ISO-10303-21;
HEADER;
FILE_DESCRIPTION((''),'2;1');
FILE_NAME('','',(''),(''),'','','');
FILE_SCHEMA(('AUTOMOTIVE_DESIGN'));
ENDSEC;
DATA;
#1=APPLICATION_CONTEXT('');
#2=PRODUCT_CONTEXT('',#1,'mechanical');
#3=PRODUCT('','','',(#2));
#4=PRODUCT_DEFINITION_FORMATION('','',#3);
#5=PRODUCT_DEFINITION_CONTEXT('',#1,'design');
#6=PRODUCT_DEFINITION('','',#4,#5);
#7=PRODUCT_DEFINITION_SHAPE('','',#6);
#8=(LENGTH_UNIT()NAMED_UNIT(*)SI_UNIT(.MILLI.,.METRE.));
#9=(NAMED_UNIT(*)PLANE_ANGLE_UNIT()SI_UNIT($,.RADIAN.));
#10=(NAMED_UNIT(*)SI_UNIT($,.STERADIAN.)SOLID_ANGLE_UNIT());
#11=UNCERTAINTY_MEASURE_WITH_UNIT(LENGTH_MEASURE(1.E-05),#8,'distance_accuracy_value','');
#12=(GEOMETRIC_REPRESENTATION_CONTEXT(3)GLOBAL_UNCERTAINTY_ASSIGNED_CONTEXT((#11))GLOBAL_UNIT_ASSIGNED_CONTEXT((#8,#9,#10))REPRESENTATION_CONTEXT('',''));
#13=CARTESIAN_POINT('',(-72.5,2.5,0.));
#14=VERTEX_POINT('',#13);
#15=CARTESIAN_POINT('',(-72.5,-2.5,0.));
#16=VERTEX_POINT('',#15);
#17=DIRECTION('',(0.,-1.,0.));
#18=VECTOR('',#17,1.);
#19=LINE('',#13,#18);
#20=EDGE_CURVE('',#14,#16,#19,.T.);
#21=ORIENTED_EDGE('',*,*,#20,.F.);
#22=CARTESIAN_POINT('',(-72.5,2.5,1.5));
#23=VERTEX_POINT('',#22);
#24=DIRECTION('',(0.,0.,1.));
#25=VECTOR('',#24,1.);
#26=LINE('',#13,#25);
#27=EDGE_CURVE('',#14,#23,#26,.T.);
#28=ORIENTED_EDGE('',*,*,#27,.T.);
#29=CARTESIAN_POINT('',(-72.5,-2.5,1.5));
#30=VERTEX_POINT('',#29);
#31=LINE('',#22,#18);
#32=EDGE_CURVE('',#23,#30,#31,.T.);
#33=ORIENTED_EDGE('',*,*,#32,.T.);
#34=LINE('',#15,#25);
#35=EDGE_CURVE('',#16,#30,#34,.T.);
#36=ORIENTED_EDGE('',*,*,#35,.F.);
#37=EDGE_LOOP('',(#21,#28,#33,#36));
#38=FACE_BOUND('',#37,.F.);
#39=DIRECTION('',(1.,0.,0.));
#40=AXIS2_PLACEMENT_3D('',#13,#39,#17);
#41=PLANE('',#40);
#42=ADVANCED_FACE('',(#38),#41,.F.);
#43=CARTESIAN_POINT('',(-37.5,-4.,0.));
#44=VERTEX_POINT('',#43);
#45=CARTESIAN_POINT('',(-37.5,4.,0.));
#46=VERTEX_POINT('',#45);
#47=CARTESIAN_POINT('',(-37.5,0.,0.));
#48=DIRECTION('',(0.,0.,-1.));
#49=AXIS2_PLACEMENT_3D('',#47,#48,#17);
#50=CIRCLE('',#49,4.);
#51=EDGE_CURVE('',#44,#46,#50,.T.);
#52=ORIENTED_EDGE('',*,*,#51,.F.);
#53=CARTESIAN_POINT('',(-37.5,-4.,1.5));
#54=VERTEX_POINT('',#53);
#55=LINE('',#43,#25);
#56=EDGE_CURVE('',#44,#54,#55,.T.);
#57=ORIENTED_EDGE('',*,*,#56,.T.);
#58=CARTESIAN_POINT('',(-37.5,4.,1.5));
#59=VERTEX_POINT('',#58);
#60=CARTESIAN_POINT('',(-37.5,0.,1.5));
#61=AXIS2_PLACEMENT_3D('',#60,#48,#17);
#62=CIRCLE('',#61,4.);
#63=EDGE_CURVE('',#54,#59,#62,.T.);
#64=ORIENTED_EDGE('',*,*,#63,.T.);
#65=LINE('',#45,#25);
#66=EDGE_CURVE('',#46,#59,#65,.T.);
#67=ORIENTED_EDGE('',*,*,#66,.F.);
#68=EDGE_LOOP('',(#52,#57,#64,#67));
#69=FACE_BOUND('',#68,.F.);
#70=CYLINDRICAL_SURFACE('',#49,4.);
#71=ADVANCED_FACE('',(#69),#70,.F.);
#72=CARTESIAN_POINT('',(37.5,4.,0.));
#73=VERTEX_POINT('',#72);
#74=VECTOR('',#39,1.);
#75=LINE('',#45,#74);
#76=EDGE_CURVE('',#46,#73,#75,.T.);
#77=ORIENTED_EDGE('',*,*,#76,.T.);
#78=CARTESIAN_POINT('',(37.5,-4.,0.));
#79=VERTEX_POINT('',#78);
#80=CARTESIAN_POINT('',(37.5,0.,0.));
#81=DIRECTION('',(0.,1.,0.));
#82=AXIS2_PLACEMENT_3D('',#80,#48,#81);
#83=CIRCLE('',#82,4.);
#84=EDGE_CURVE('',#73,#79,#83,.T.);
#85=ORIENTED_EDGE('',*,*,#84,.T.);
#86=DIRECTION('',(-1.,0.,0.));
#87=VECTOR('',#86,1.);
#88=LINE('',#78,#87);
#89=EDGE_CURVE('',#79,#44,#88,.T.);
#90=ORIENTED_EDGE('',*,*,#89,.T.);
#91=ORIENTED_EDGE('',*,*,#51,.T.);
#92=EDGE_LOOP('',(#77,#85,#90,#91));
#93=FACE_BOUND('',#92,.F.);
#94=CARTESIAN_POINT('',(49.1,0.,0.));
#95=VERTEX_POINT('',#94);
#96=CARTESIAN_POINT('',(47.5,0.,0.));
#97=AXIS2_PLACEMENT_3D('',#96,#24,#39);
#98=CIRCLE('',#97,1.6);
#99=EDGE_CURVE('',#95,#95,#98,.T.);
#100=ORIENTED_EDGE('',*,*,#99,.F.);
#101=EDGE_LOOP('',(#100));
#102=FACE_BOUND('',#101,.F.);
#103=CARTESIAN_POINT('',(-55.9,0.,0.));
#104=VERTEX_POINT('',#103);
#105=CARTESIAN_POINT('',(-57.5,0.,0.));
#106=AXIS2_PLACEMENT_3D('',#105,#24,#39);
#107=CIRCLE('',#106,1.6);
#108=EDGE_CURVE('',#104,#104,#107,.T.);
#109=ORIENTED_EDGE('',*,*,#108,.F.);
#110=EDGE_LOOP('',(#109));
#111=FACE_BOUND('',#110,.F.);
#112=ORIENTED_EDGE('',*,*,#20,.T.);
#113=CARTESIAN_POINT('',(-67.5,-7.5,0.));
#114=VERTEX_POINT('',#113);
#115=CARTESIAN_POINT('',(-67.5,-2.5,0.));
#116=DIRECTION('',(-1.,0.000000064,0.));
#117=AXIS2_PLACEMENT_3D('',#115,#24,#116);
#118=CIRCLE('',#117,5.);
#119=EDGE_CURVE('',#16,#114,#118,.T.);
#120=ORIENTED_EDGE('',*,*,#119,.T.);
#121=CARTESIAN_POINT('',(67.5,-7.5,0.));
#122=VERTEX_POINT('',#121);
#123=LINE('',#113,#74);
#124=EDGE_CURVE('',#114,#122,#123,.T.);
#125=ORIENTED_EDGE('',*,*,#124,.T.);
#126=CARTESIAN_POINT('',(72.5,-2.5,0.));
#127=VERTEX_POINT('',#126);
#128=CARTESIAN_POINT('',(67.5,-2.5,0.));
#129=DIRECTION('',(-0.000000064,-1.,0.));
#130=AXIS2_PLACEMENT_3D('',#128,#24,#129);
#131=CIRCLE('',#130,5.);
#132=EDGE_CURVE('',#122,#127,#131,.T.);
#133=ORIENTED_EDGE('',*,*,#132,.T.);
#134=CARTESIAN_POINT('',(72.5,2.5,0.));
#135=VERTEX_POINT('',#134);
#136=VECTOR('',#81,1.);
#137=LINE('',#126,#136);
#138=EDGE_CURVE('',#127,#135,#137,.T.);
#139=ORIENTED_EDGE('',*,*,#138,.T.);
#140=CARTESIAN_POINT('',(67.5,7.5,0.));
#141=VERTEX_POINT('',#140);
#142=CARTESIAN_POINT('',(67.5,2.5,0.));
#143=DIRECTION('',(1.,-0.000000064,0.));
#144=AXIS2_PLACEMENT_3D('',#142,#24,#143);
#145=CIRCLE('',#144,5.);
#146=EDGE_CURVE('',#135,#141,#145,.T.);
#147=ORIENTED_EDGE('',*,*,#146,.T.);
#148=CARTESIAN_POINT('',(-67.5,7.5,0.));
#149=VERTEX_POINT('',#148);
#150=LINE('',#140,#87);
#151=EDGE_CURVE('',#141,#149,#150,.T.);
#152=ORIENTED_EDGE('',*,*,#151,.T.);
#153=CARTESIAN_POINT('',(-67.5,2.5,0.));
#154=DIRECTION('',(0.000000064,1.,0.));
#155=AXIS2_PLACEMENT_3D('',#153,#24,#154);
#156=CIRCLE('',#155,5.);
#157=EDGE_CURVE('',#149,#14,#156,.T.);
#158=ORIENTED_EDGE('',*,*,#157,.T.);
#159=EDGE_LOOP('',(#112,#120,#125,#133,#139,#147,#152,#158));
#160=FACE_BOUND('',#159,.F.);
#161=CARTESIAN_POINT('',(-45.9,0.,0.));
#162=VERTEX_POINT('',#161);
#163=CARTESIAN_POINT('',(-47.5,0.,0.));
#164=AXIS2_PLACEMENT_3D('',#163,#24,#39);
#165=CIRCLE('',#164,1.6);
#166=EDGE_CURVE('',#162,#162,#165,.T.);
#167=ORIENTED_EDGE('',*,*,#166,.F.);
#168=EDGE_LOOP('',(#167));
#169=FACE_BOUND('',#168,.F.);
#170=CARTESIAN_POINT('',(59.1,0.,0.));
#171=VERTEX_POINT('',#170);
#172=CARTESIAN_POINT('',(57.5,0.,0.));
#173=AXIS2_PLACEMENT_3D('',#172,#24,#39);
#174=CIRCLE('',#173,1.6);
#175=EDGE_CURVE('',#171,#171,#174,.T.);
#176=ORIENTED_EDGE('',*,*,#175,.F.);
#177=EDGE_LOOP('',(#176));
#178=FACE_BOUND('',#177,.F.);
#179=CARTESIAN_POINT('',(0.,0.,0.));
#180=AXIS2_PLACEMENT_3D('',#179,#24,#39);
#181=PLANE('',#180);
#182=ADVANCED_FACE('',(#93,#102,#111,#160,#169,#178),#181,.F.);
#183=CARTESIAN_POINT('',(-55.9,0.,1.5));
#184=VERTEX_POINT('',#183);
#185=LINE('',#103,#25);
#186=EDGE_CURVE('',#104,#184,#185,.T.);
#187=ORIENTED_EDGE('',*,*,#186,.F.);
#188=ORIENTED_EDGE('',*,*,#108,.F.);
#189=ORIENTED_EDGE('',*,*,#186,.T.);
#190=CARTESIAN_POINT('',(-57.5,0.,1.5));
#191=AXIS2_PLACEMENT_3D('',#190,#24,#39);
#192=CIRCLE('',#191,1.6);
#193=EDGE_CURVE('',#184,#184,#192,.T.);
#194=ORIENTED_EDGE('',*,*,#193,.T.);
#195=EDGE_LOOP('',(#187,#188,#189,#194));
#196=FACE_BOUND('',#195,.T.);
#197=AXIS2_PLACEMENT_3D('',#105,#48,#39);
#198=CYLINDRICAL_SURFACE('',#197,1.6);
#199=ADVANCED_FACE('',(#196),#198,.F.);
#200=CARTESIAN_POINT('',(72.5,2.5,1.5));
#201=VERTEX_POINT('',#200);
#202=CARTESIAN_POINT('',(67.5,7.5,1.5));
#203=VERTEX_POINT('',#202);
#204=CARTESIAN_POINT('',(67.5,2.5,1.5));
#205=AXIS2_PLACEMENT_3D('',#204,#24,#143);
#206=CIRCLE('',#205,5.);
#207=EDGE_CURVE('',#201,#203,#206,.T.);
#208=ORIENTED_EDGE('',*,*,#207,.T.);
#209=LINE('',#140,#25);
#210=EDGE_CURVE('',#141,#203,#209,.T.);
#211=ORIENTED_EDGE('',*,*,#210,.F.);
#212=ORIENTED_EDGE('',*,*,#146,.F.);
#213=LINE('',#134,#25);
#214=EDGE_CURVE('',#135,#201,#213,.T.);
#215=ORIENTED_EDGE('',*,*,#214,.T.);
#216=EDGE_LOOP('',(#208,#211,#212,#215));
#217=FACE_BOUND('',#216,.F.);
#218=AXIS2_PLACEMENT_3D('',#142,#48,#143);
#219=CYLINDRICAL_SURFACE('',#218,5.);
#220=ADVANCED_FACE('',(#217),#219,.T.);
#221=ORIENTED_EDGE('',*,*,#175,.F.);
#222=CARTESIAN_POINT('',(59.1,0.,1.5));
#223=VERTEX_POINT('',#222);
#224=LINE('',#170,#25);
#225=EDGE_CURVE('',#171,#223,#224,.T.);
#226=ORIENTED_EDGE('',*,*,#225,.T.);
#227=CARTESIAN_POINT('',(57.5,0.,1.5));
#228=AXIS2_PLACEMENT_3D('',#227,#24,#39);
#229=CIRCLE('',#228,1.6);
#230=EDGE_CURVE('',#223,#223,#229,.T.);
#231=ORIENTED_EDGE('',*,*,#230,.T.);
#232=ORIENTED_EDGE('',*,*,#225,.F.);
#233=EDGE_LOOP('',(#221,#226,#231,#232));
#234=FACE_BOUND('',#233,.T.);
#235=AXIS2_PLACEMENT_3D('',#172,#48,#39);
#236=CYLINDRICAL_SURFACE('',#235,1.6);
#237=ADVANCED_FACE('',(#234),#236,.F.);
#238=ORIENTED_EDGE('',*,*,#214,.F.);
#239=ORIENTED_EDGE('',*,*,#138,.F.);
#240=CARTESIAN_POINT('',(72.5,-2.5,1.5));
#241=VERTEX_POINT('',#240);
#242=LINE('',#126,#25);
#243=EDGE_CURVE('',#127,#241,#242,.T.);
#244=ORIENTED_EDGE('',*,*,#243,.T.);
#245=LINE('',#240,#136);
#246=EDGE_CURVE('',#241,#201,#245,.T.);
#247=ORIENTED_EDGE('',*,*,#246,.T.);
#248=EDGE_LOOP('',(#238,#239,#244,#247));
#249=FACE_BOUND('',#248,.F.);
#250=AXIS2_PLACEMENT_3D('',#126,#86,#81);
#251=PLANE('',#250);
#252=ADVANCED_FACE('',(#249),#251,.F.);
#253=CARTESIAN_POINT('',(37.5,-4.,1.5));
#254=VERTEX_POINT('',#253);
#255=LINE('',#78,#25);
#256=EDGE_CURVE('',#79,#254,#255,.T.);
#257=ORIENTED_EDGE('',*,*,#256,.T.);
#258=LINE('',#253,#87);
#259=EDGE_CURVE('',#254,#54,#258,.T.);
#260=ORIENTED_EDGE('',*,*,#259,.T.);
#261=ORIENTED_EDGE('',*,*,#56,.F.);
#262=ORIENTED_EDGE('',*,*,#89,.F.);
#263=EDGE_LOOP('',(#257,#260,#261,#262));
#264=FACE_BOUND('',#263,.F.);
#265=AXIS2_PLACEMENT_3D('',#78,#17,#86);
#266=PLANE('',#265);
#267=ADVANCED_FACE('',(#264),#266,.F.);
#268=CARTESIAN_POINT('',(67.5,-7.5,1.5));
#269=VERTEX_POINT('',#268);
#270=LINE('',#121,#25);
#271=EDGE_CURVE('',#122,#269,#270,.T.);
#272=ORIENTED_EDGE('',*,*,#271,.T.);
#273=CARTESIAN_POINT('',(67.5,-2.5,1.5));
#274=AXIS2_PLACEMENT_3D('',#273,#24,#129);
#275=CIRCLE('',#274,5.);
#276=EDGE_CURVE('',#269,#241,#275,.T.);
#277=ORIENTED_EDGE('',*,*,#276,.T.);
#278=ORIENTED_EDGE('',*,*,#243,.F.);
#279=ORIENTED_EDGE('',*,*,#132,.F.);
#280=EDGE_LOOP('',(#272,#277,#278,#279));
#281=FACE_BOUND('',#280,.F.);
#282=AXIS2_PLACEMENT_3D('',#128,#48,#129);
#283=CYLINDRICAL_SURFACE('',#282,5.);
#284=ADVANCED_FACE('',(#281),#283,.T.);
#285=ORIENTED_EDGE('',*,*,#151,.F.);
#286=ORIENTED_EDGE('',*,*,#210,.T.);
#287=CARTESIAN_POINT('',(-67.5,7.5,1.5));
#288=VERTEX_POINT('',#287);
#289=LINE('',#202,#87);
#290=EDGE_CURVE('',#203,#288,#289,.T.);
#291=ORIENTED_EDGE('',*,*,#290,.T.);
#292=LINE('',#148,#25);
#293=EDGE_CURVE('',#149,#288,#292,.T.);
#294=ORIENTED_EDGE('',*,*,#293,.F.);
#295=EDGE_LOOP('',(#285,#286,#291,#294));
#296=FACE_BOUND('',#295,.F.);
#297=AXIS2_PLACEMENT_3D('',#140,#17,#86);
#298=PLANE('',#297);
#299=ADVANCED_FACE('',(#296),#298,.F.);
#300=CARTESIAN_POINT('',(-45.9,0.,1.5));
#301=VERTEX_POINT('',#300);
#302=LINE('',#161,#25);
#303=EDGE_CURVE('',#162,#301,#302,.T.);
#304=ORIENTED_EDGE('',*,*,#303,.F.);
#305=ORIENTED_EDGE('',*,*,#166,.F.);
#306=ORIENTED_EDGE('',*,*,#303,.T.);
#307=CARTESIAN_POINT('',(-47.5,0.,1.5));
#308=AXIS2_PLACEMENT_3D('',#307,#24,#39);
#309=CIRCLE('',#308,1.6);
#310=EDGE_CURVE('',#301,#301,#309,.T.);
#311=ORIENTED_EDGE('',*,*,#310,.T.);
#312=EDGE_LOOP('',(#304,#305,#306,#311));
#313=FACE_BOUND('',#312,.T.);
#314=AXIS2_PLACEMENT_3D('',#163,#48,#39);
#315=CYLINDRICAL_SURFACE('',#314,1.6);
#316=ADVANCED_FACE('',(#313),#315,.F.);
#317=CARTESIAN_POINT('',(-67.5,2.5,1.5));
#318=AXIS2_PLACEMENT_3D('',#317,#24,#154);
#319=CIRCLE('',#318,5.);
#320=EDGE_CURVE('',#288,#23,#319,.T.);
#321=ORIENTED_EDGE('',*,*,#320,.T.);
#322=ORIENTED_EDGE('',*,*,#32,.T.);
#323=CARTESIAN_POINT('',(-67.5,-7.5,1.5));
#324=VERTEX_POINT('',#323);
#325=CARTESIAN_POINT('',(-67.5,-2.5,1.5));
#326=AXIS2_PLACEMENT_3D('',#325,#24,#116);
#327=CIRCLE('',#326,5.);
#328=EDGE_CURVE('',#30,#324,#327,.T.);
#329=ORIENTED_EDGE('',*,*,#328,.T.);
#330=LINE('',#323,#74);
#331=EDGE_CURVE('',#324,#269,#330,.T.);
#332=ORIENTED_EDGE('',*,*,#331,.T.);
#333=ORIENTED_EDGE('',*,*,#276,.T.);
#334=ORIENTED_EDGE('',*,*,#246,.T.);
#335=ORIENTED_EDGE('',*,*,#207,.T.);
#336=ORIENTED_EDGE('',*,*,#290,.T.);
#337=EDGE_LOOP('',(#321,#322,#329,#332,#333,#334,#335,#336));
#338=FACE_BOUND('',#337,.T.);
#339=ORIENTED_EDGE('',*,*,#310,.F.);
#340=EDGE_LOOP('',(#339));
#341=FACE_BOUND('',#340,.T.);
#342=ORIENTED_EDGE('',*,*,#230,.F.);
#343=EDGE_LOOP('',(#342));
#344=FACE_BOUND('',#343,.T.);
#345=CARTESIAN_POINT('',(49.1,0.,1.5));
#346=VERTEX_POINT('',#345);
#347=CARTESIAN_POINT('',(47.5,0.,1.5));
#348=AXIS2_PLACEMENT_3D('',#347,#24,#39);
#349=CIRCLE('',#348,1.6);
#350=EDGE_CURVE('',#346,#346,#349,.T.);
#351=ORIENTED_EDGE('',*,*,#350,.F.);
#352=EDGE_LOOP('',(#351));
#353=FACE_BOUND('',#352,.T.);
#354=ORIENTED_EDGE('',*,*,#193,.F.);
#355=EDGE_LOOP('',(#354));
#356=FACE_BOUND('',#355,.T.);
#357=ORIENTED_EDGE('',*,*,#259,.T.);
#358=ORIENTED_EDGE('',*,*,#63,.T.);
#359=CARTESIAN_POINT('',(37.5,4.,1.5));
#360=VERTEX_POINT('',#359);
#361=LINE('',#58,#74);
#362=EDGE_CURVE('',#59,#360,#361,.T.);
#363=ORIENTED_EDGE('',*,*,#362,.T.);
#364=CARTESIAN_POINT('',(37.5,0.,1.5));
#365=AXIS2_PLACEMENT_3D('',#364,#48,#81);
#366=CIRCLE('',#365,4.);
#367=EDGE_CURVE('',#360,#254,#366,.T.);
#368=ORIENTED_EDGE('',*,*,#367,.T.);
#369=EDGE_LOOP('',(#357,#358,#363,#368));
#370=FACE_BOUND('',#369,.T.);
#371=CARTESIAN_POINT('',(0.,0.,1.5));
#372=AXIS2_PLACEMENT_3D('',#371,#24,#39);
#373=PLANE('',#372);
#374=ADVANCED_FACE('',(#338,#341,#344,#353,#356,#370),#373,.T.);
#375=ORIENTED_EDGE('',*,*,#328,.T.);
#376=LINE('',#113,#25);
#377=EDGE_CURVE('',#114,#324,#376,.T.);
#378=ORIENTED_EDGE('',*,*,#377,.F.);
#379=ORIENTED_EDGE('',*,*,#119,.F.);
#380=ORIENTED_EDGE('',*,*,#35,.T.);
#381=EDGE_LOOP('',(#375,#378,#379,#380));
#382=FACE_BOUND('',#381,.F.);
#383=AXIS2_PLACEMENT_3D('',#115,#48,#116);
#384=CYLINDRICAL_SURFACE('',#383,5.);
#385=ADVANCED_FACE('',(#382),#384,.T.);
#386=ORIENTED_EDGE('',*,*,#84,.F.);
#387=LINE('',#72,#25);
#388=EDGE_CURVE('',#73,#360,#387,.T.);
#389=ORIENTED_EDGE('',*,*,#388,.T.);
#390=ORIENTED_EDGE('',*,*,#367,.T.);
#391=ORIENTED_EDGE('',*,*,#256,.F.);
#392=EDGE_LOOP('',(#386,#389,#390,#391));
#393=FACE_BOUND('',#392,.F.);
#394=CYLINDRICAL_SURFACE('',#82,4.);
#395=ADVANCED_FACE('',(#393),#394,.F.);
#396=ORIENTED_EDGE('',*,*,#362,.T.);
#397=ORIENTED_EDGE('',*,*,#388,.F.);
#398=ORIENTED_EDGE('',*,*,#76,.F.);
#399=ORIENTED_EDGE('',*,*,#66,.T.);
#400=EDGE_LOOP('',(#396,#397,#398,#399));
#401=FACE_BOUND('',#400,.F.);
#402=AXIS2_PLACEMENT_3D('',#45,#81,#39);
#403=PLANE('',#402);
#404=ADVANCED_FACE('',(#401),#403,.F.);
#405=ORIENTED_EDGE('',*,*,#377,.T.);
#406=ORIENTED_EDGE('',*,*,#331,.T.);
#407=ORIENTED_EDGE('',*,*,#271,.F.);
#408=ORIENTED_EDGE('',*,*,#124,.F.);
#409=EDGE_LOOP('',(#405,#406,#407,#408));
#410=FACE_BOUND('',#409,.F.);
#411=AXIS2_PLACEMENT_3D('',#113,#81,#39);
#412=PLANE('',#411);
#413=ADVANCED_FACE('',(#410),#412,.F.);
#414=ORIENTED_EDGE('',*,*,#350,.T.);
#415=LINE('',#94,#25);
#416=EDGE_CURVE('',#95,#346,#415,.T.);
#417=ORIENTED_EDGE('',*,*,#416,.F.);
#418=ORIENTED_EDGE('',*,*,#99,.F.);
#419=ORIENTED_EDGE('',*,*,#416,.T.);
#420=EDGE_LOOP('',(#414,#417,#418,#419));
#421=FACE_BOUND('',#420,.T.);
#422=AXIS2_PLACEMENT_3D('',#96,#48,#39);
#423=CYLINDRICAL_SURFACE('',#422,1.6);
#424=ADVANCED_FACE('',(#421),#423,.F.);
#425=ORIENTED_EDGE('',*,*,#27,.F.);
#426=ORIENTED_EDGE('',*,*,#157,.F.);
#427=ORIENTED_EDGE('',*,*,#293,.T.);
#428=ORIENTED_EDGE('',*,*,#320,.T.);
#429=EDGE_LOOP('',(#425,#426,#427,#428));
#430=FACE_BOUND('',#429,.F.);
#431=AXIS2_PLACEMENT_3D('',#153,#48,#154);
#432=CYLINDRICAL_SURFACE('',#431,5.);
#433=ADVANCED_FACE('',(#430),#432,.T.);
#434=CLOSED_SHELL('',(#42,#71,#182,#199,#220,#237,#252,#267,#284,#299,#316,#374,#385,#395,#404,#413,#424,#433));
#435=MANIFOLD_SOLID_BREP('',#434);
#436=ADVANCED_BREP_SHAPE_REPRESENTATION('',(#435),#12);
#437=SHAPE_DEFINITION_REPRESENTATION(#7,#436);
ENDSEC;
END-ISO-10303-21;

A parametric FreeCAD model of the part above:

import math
import FreeCAD as App
import Part
import Sketcher
from FreeCAD import Vector

doc = App.newDocument("Part")
params = doc.addObject("Spreadsheet::Sheet", "Params")
for row, (alias, value) in enumerate([
    ("sketch1_radius", "5 mm"),
    ("sketch1_radius2", "4 mm"),
    ("sketch1_diameter", "3.2 mm"),
    ("sketch1_width", "135 mm"),
    ("sketch1_width2", "75 mm"),
    ("pad1_length", "1.5 mm"),
], start=1):
    params.set(f"A{row}", alias)
    params.set(f"B{row}", "=" + value)
    params.setAlias(f"B{row}", alias)

body = doc.addObject("PartDesign::Body", "Body")

sketch1 = body.newObject("Sketcher::SketchObject", "Sketch")
sketch1.AttachmentSupport = (doc.getObject("XY_Plane"), [""])
sketch1.MapMode = "FlatFace"
sketch1.addGeometry([
    Part.ArcOfCircle(Part.Circle(Vector(-67.5, -2.5, 0), Vector(0, 0, 1), 5), math.radians(180), math.radians(270)),
    Part.LineSegment(Vector(-67.5, -7.5, 0), Vector(67.5, -7.5, 0)),
    Part.ArcOfCircle(Part.Circle(Vector(67.5, -2.5, 0), Vector(0, 0, 1), 5), math.radians(-90), math.radians(0)),
    Part.LineSegment(Vector(72.5, -2.5, 0), Vector(72.5, 2.5, 0)),
    Part.ArcOfCircle(Part.Circle(Vector(67.5, 2.5, 0), Vector(0, 0, 1), 5), math.radians(0), math.radians(90)),
    Part.LineSegment(Vector(67.5, 7.5, 0), Vector(-67.5, 7.5, 0)),
    Part.ArcOfCircle(Part.Circle(Vector(-67.5, 2.5, 0), Vector(0, 0, 1), 5), math.radians(90), math.radians(180)),
    Part.LineSegment(Vector(-72.5, 2.5, 0), Vector(-72.5, -2.5, 0)),
    Part.Circle(Vector(-57.5, 0, 0), Vector(0, 0, 1), 1.6),
    Part.Circle(Vector(-47.5, 0, 0), Vector(0, 0, 1), 1.6),
    Part.LineSegment(Vector(37.5, -4, 0), Vector(-37.5, -4, 0)),
    Part.ArcOfCircle(Part.Circle(Vector(-37.5, 0, 0), Vector(0, 0, 1), 4), math.radians(90), math.radians(270)),
    Part.LineSegment(Vector(-37.5, 4, 0), Vector(37.5, 4, 0)),
    Part.ArcOfCircle(Part.Circle(Vector(37.5, 0, 0), Vector(0, 0, 1), 4), math.radians(-90), math.radians(90)),
    Part.Circle(Vector(47.5, 0, 0), Vector(0, 0, 1), 1.6),
    Part.Circle(Vector(57.5, 0, 0), Vector(0, 0, 1), 1.6),
], False)
sketch1.addConstraint([
    Sketcher.Constraint("Tangent", 0, 2, 1, 1),
    Sketcher.Constraint("Tangent", 1, 2, 2, 1),
    Sketcher.Constraint("Tangent", 2, 2, 3, 1),
    Sketcher.Constraint("Tangent", 3, 2, 4, 1),
    Sketcher.Constraint("Tangent", 4, 2, 5, 1),
    Sketcher.Constraint("Tangent", 5, 2, 6, 1),
    Sketcher.Constraint("Tangent", 6, 2, 7, 1),
    Sketcher.Constraint("Tangent", 7, 2, 0, 1),
    Sketcher.Constraint("Tangent", 10, 2, 11, 2),
    Sketcher.Constraint("Tangent", 11, 1, 12, 1),
    Sketcher.Constraint("Tangent", 12, 2, 13, 2),
    Sketcher.Constraint("Tangent", 13, 1, 10, 1),
    Sketcher.Constraint("Horizontal", 1),
    Sketcher.Constraint("Vertical", 3),
    Sketcher.Constraint("Horizontal", 5),
    Sketcher.Constraint("Vertical", 7),
    Sketcher.Constraint("Horizontal", 10),
    Sketcher.Constraint("Horizontal", 12),
    Sketcher.Constraint("Equal", 0, 2),
    Sketcher.Constraint("Equal", 2, 4),
    Sketcher.Constraint("Equal", 4, 6),
    Sketcher.Constraint("Equal", 8, 9),
    Sketcher.Constraint("Equal", 9, 14),
    Sketcher.Constraint("Equal", 14, 15),
    Sketcher.Constraint("Symmetric", 0, 3, 4, 3, -1, 1),
    Sketcher.Constraint("Symmetric", 11, 3, 13, 3, -1, 1),
    Sketcher.Constraint("Symmetric", 9, 3, 14, 3, -1, 1),
    Sketcher.Constraint("Symmetric", 8, 3, 15, 3, -1, 1),
    Sketcher.Constraint("PointOnObject", 8, 3, -1),
    Sketcher.Constraint("PointOnObject", 9, 3, -1),
    Sketcher.Constraint("Radius", 0, 5.0),
    Sketcher.Constraint("Radius", 11, 4.0),
    Sketcher.Constraint("Diameter", 8, 3.2),
    Sketcher.Constraint("DistanceX", 1, 1, 1, 2, 135.0),
    Sketcher.Constraint("DistanceX", 10, 2, 10, 1, 75.0),
    Sketcher.Constraint("DistanceY", 3, 1, 3, 2, 5.0),
    Sketcher.Constraint("DistanceX", 0, 3, 8, 3, 10.0),
    Sketcher.Constraint("DistanceX", 8, 3, 9, 3, 10.0),
])
sketch1.setExpression("Constraints[30]", "Params.sketch1_radius")
sketch1.setExpression("Constraints[31]", "Params.sketch1_radius2")
sketch1.setExpression("Constraints[32]", "Params.sketch1_diameter")
sketch1.setExpression("Constraints[33]", "Params.sketch1_width")
sketch1.setExpression("Constraints[34]", "Params.sketch1_width2")
pad1 = body.newObject("PartDesign::Pad", "Pad")
pad1.Profile = sketch1
pad1.setExpression("Length", "Params.pad1_length")

doc.recompute()
